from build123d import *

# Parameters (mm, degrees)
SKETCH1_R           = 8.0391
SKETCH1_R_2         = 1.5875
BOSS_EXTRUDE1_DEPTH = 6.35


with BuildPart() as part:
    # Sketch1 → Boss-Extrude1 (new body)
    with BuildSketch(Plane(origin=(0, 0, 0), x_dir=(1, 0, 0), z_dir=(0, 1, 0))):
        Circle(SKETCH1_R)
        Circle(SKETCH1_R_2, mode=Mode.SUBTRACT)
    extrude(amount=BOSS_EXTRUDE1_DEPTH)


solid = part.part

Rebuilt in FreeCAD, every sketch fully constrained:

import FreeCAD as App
import Part
import Sketcher
from FreeCAD import Vector
Q = App.Units.Quantity

doc = App.newDocument("Part")
body = doc.addObject("PartDesign::Body", "Body")

# Sketch on XZ plane
sketch1 = body.newObject("Sketcher::SketchObject", "Sketch")
sketch1.AttachmentSupport = (doc.getObject("XZ_Plane"), [""])
sketch1.MapMode = "FlatFace"
sketch1.addGeometry(Part.Circle(Vector(0, 0, 0), Vector(0, 0, 1), 8), False)
sketch1.addGeometry(Part.Circle(Vector(0, 0, 0), Vector(0, 0, 1), 1.6), False)
sketch1.addConstraint(Sketcher.Constraint("Coincident", 0, 3, -1, 1))
sketch1.addConstraint(Sketcher.Constraint("Coincident", 1, 3, -1, 1))
sketch1.addConstraint(Sketcher.Constraint("Diameter", 0, Q("0.633 in")))
sketch1.addConstraint(Sketcher.Constraint("Diameter", 1, Q("0.125 in")))
pad1 = body.newObject("PartDesign::Pad", "Pad")
pad1.Profile = sketch1
pad1.Length = Q("0.25 in")
pad1.Reversed = True

doc.recompute()
